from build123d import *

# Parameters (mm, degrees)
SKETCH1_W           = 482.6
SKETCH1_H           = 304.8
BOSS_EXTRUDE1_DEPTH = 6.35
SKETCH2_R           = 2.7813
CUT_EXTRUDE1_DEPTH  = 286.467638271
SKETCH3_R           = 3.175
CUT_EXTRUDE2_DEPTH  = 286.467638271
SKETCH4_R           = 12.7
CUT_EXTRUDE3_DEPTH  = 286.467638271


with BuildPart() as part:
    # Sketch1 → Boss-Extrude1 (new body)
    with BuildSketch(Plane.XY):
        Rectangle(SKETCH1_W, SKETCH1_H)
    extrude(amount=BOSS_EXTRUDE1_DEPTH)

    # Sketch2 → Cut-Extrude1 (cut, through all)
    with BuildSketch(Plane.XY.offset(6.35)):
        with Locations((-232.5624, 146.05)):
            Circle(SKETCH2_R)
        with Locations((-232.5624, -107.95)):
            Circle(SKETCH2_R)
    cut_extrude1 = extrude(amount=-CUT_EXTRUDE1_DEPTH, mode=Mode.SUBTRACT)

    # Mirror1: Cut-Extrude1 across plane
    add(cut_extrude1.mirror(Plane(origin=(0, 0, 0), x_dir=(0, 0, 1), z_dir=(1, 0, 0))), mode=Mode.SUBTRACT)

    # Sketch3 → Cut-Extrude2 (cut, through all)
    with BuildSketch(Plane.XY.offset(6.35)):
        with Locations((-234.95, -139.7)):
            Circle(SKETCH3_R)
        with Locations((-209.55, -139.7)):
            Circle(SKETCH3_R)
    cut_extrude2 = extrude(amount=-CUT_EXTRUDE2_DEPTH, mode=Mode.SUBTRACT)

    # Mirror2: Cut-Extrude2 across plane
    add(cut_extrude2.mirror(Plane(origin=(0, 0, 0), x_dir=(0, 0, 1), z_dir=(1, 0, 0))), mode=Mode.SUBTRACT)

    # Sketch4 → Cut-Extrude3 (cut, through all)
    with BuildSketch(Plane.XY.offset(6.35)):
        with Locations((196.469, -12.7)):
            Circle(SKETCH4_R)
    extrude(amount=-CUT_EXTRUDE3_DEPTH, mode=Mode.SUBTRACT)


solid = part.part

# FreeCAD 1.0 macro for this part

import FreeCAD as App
import Part
import Sketcher
from FreeCAD import Vector
Q = App.Units.Quantity

doc = App.newDocument("Part")
params = doc.addObject("Spreadsheet::Sheet", "Params")
for row, (alias, value) in enumerate([
    ("sketch1_width", "19 in"),
    ("sketch1_height", "12 in"),
    ("pad1_length", "0.25 in"),
    ("sketch2_diameter", "0.219 in"),
    ("sketch3_diameter", "0.25 in"),
    ("sketch4_diameter", "1 in"),
], start=1):
    params.set(f"A{row}", alias)
    params.set(f"B{row}", "=" + value)
    params.setAlias(f"B{row}", alias)

body = doc.addObject("PartDesign::Body", "Body")

# Sketch on XY plane
sketch1 = body.newObject("Sketcher::SketchObject", "Sketch")
sketch1.AttachmentSupport = (doc.getObject("XY_Plane"), [""])
sketch1.MapMode = "FlatFace"
sketch1.addGeometry([
    Part.LineSegment(Vector(-241, 152, 0), Vector(-241, -152, 0)),
    Part.LineSegment(Vector(-241, -152, 0), Vector(241, -152, 0)),
    Part.LineSegment(Vector(241, -152, 0), Vector(241, 152, 0)),
    Part.LineSegment(Vector(241, 152, 0), Vector(-241, 152, 0)),
], False)
sketch1.addConstraint([
    Sketcher.Constraint("Coincident", 0, 2, 1, 1),
    Sketcher.Constraint("Coincident", 1, 2, 2, 1),
    Sketcher.Constraint("Coincident", 2, 2, 3, 1),
    Sketcher.Constraint("Coincident", 3, 2, 0, 1),
    Sketcher.Constraint("Vertical", 0),
    Sketcher.Constraint("Horizontal", 1),
    Sketcher.Constraint("Vertical", 2),
    Sketcher.Constraint("Horizontal", 3),
    Sketcher.Constraint("Symmetric", 0, 2, 2, 2, -1, 1),
    Sketcher.Constraint("DistanceX", 1, 1, 1, 2, Q("19 in")),
    Sketcher.Constraint("DistanceY", 0, 2, 0, 1, Q("12 in")),
])
sketch1.setExpression("Constraints[9]", "Params.sketch1_width")
sketch1.setExpression("Constraints[10]", "Params.sketch1_height")
pad1 = body.newObject("PartDesign::Pad", "Pad")
pad1.Profile = sketch1
pad1.setExpression("Length", "Params.pad1_length")

# Sketch on XY plane
sketch2 = body.newObject("Sketcher::SketchObject", "Sketch001")
sketch2.AttachmentSupport = (doc.getObject("XY_Plane"), [""])
sketch2.MapMode = "FlatFace"
sketch2.AttachmentOffset = App.Placement(Vector(0, 0, 0.25 * 25.4), App.Rotation())
sketch2.addGeometry([
    Part.Circle(Vector(-232.6, 146.1, 0), Vector(0, 0, 1), 2.8),
    Part.Circle(Vector(-232.6, -108, 0), Vector(0, 0, 1), 2.8),
], False)
sketch2.addConstraint([
    Sketcher.Constraint("Equal", 0, 1),
    Sketcher.Constraint("Vertical", 0, 3, 1, 3),
    Sketcher.Constraint("Diameter", 0, Q("0.219 in")),
    Sketcher.Constraint("DistanceY", 1, 3, 0, 3, Q("10 in")),
    Sketcher.Constraint("DistanceY", -1, 1, 0, 3, Q("5.75 in")),
    Sketcher.Constraint("DistanceX", 0, 3, -1, 1, Q("9.156 in")),
])
sketch2.setExpression("Constraints[2]", "Params.sketch2_diameter")
pocket1 = body.newObject("PartDesign::Pocket", "Pocket")
pocket1.Profile = sketch2
pocket1.Type = "ThroughAll"
doc.recompute()

mirrored = body.newObject("PartDesign::Mirrored", "Mirrored")
mirrored.Originals = [pocket1]
mirrored.MirrorPlane = (doc.getObject("YZ_Plane"), [""])
body.Tip = mirrored

# Sketch on XY plane
sketch3 = body.newObject("Sketcher::SketchObject", "Sketch002")
sketch3.AttachmentSupport = (doc.getObject("XY_Plane"), [""])
sketch3.MapMode = "FlatFace"
sketch3.AttachmentOffset = App.Placement(Vector(0, 0, 0.25 * 25.4), App.Rotation())
sketch3.addGeometry([
    Part.Circle(Vector(-234.9, -139.7, 0), Vector(0, 0, 1), 3.2),
    Part.Circle(Vector(-209.6, -139.7, 0), Vector(0, 0, 1), 3.2),
], False)
sketch3.addConstraint([
    Sketcher.Constraint("Equal", 0, 1),
    Sketcher.Constraint("Horizontal", 0, 3, 1, 3),
    Sketcher.Constraint("Diameter", 0, Q("0.25 in")),
    Sketcher.Constraint("DistanceX", 0, 3, 1, 3, Q("1 in")),
    Sketcher.Constraint("DistanceY", 0, 3, -1, 1, Q("5.5 in")),
    Sketcher.Constraint("DistanceX", 0, 3, -1, 1, Q("9.25 in")),
])
sketch3.setExpression("Constraints[2]", "Params.sketch3_diameter")
pocket2 = body.newObject("PartDesign::Pocket", "Pocket001")
pocket2.Profile = sketch3
pocket2.Type = "ThroughAll"
doc.recompute()

mirrored2 = body.newObject("PartDesign::Mirrored", "Mirrored001")
mirrored2.Originals = [pocket2]
mirrored2.MirrorPlane = (doc.getObject("YZ_Plane"), [""])
body.Tip = mirrored2

# Sketch on XY plane
sketch4 = body.newObject("Sketcher::SketchObject", "Sketch003")
sketch4.AttachmentSupport = (doc.getObject("XY_Plane"), [""])
sketch4.MapMode = "FlatFace"
sketch4.AttachmentOffset = App.Placement(Vector(0, 0, 0.25 * 25.4), App.Rotation())
sketch4.addGeometry(Part.Circle(Vector(196, -13, 0), Vector(0, 0, 1), 13), False)
sketch4.addConstraint([
    Sketcher.Constraint("Diameter", 0, Q("1 in")),
    Sketcher.Constraint("DistanceY", 0, 3, -1, 1, Q("0.5 in")),
    Sketcher.Constraint("DistanceX", -1, 1, 0, 3, Q("7.735 in")),
])
sketch4.setExpression("Constraints[0]", "Params.sketch4_diameter")
pocket3 = body.newObject("PartDesign::Pocket", "Pocket002")
pocket3.Profile = sketch4
pocket3.Type = "ThroughAll"

doc.recompute()
